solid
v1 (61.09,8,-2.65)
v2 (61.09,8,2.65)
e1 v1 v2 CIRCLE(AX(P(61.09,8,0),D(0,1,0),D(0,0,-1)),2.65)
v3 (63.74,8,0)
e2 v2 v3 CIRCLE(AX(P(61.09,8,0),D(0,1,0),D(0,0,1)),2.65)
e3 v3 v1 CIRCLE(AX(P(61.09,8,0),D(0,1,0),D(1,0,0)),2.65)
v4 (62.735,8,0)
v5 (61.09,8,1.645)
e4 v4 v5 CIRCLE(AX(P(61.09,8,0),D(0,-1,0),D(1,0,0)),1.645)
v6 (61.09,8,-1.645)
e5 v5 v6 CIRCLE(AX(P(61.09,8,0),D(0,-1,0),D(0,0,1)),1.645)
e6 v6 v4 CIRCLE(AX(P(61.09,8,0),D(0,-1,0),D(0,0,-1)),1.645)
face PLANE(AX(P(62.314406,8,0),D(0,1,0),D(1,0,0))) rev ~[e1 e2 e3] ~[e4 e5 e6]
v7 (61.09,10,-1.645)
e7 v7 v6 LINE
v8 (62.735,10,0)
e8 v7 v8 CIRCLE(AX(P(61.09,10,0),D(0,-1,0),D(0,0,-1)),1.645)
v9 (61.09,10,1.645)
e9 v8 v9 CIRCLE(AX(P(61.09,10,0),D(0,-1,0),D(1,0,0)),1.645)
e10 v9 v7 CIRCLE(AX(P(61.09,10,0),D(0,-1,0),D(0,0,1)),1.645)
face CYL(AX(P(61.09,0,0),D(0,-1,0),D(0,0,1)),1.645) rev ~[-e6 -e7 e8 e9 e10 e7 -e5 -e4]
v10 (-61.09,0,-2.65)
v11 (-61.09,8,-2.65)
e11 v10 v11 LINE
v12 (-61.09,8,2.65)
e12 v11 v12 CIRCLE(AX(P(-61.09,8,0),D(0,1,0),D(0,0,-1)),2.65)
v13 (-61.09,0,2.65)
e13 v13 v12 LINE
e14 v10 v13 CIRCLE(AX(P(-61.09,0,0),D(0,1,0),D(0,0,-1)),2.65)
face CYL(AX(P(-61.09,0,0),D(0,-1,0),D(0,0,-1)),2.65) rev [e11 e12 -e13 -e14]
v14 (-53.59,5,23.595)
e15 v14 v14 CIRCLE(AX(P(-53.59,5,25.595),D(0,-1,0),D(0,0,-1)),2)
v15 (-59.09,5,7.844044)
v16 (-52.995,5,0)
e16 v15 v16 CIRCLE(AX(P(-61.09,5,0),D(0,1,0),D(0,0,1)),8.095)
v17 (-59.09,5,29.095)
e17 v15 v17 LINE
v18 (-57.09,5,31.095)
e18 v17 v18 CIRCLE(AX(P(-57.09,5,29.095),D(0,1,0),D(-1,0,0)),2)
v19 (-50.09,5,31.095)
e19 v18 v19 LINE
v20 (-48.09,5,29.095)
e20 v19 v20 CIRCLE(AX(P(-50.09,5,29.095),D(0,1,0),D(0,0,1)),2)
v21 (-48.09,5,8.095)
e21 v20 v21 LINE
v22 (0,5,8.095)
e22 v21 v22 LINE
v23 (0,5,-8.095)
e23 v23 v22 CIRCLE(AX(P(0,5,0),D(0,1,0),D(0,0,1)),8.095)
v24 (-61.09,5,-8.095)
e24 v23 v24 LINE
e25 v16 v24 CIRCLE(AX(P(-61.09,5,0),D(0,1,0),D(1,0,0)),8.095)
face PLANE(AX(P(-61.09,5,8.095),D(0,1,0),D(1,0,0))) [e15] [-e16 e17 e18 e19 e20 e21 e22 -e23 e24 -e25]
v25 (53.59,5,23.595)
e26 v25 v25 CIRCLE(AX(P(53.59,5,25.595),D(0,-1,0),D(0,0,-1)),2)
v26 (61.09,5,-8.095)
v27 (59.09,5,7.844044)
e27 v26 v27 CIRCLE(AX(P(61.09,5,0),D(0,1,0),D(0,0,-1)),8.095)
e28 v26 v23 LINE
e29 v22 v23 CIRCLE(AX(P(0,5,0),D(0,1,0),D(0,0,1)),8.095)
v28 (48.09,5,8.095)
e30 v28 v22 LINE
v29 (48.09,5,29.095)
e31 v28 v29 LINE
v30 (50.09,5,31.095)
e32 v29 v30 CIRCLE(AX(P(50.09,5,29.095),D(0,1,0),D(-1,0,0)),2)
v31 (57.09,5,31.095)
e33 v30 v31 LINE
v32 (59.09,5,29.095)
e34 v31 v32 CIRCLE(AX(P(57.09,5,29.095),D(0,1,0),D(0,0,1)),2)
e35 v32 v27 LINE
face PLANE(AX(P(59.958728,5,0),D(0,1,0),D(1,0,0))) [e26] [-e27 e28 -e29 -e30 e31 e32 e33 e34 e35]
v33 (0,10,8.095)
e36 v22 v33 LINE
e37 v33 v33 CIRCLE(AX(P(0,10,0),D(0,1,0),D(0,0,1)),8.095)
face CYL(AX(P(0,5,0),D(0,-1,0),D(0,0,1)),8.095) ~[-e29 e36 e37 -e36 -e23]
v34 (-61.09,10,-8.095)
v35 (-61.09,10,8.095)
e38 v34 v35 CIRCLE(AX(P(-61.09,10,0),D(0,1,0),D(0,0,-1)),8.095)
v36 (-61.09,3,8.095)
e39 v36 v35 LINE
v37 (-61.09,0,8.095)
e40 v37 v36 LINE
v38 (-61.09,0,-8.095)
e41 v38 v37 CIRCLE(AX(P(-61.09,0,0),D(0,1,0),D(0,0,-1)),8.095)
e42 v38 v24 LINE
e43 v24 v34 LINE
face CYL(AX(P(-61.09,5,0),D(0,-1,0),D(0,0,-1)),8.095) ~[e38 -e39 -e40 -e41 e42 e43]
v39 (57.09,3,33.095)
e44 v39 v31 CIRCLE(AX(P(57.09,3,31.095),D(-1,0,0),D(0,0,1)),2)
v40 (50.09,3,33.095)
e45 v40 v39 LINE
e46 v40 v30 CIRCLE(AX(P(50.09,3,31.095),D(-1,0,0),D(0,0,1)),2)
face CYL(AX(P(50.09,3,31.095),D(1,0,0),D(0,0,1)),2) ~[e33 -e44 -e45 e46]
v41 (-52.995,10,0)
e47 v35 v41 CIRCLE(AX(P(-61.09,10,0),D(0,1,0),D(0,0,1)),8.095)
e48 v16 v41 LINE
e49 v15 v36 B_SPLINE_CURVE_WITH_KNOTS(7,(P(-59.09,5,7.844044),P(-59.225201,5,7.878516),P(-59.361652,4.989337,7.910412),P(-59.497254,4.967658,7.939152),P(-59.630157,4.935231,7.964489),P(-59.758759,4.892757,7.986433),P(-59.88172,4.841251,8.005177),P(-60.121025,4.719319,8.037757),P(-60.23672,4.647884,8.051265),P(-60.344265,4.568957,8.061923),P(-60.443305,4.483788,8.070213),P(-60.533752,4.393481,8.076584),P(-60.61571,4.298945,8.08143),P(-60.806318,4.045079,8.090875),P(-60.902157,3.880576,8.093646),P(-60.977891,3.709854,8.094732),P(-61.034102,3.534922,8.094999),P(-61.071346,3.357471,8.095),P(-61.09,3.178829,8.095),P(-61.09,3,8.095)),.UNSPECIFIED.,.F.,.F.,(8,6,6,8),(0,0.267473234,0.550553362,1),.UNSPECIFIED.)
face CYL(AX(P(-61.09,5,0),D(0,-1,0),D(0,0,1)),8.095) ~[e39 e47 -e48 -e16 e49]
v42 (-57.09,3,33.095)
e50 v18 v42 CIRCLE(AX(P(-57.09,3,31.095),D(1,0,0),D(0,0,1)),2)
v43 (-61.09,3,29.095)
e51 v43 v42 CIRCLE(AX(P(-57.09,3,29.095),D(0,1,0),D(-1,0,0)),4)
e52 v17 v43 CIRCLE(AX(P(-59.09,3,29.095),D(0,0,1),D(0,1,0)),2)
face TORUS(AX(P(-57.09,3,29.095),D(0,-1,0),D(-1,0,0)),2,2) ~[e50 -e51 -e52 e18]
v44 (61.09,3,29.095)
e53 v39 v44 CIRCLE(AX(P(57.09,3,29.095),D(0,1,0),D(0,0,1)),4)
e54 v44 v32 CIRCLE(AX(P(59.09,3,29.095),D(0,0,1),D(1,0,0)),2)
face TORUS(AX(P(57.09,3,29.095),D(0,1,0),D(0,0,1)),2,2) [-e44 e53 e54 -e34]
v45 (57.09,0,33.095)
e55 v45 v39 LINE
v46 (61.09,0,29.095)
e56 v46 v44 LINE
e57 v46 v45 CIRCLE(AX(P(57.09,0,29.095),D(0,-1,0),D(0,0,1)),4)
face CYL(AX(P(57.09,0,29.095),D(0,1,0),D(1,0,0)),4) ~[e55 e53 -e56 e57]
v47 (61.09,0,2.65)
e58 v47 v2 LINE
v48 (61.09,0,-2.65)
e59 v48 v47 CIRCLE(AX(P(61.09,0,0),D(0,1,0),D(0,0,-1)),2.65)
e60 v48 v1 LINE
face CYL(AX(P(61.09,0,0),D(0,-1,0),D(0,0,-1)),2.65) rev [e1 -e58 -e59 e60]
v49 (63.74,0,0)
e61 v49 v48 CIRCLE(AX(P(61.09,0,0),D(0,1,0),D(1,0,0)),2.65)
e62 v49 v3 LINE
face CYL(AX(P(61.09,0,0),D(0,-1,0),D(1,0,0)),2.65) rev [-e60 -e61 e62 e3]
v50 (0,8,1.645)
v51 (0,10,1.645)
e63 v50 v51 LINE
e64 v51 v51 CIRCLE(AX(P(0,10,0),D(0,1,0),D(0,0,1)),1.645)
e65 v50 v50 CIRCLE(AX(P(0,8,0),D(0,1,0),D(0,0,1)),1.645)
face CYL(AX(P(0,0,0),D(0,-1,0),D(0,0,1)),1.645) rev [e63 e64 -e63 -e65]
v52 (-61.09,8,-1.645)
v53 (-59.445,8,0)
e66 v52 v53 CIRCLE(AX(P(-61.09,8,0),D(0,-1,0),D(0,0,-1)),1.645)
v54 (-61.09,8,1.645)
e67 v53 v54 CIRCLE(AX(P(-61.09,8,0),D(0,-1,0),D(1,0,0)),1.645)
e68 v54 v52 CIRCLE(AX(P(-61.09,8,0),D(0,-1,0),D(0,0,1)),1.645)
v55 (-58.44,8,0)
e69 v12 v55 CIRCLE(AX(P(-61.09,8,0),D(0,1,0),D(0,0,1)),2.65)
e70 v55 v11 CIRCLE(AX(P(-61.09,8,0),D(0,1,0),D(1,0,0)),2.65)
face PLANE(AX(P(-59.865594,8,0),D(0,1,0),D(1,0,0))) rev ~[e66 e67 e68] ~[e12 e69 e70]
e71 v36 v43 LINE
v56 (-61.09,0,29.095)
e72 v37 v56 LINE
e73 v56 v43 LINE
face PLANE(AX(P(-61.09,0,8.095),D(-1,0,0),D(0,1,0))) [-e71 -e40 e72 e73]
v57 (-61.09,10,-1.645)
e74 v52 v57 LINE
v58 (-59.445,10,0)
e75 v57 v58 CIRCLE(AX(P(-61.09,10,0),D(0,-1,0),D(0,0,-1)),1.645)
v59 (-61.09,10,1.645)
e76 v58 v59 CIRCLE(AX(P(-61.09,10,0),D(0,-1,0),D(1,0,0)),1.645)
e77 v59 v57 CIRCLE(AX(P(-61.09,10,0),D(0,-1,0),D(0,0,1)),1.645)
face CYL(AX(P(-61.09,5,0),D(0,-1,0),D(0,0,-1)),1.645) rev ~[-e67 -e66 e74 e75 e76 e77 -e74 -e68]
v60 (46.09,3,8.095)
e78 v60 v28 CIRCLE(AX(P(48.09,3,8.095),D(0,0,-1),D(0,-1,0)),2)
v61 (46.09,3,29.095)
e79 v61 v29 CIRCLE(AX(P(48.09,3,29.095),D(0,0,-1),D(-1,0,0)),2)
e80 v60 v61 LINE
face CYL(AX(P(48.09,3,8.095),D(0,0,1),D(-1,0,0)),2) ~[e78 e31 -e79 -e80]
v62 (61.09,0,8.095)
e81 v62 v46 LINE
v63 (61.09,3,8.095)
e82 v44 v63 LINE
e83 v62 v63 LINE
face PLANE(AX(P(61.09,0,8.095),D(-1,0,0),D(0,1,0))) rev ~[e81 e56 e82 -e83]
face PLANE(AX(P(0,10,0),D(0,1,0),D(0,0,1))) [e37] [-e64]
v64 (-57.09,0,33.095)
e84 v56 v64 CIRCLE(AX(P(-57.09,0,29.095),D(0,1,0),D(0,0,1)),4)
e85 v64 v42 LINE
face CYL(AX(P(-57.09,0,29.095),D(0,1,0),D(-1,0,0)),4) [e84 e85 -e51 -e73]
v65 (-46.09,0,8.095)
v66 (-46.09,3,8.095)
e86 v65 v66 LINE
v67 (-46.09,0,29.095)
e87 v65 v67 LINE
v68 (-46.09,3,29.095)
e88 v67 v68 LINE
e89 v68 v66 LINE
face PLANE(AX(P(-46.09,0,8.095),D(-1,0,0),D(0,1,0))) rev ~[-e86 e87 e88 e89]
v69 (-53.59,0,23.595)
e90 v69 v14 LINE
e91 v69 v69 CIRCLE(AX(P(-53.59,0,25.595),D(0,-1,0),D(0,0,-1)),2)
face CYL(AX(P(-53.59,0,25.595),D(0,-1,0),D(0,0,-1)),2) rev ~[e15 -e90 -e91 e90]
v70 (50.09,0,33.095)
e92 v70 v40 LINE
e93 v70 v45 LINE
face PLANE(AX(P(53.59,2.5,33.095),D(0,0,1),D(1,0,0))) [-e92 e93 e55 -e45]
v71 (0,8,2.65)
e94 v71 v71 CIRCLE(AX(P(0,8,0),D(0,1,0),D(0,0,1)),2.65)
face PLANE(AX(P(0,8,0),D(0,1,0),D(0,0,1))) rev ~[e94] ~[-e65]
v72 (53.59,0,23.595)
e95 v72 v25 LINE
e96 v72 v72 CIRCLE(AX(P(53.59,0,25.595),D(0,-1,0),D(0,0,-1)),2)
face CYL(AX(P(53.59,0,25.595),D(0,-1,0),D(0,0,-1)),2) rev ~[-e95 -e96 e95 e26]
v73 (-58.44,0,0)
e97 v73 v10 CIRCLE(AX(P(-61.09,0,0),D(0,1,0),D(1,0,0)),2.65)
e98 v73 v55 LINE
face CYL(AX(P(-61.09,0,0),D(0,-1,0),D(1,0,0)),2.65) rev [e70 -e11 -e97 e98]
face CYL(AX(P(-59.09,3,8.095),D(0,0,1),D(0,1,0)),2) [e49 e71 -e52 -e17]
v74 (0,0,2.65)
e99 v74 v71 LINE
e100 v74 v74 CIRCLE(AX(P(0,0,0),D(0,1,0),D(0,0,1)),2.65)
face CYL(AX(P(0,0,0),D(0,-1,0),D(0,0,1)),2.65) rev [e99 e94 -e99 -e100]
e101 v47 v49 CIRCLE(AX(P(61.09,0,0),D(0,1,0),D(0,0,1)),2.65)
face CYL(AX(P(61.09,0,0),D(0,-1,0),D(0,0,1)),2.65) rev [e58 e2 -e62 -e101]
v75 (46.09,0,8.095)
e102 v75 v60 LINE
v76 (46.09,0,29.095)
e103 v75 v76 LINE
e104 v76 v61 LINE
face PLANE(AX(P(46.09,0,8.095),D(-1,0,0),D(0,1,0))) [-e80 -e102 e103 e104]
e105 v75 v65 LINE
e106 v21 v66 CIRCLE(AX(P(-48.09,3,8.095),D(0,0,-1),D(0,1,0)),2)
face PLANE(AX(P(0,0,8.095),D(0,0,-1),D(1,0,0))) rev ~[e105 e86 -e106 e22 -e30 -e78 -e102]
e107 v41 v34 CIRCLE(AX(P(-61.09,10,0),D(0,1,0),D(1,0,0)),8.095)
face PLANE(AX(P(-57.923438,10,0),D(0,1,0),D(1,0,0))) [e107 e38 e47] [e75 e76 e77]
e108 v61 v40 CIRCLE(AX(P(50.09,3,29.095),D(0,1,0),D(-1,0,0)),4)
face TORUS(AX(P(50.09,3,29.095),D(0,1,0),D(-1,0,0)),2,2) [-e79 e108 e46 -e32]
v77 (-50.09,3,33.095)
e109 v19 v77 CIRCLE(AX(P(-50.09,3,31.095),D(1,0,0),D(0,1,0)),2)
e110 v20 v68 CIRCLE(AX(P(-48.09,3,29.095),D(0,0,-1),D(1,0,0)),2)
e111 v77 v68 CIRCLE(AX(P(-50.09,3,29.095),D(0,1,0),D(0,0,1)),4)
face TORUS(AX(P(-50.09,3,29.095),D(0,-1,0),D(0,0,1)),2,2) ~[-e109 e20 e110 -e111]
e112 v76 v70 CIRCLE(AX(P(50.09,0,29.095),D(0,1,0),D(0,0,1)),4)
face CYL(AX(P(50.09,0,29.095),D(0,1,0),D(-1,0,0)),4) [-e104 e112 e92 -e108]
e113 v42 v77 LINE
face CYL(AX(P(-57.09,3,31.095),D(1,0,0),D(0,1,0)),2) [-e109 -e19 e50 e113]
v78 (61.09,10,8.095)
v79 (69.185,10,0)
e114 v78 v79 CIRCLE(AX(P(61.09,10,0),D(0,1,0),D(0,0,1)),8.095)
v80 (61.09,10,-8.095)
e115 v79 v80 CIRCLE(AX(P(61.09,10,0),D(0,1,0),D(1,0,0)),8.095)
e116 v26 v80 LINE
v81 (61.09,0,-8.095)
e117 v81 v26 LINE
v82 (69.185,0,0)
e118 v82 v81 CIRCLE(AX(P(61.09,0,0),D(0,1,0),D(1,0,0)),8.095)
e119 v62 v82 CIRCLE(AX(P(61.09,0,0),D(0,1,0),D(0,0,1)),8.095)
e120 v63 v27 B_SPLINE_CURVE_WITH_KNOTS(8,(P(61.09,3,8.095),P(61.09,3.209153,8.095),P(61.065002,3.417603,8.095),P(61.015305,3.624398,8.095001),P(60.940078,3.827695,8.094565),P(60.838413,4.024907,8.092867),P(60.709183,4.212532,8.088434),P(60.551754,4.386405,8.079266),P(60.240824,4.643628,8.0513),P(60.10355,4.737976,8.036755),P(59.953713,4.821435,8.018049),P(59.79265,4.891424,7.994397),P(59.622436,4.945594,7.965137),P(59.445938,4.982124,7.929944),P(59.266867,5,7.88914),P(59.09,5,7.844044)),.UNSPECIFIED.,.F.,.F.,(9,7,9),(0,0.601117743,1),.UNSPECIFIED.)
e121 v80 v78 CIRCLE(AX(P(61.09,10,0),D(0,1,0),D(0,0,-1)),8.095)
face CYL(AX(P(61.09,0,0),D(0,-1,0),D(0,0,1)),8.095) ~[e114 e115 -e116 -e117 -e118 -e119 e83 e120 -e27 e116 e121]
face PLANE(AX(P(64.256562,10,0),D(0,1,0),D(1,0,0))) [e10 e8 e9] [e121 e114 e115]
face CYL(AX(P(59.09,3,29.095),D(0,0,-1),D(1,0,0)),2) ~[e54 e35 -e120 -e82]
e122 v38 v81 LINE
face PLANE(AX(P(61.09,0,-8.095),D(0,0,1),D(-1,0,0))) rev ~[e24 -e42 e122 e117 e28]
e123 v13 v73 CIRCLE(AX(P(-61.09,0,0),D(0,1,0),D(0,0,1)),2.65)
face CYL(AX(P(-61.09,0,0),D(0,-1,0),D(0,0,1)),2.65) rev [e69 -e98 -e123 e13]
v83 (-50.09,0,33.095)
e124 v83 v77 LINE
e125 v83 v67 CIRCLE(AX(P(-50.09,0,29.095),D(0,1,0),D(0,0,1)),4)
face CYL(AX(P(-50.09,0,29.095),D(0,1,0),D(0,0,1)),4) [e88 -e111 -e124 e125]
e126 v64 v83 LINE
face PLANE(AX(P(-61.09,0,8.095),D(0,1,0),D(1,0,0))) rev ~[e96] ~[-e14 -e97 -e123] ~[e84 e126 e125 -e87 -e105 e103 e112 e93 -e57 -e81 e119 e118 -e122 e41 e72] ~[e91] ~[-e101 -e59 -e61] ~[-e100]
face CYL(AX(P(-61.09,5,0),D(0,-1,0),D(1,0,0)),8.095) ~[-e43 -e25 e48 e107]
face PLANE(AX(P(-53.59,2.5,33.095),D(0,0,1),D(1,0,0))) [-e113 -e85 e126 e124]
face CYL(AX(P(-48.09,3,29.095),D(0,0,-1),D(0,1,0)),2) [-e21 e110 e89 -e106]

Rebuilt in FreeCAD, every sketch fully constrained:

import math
import FreeCAD as App
import Part
import Sketcher

V = App.Vector


def edges_at(feature, points):
    """Names of the edges that pass closest to the given points."""
    edges = feature.Shape.Edges
    near = lambda p: min(range(len(edges)), key=lambda i: edges[i].distToShape(Part.Vertex(*p))[0])
    return sorted({f"Edge{near(p) + 1}" for p in points})


def add_polygon(sketch, points):
    """Adds a closed chain of lines whose ends are joined by coincident constraints."""
    first, n = sketch.GeometryCount, len(points)
    for a, b in zip(points, points[1:] + points[:1]):
        sketch.addGeometry(Part.LineSegment(App.Vector(*a, 0), App.Vector(*b, 0)), False)
    for i in range(n):
        sketch.addConstraint(Sketcher.Constraint("Coincident", first + i, 2, first + (i + 1) % n, 1))

doc = App.newDocument("Part")
params = doc.addObject("Spreadsheet::Sheet", "Params")
for row, (alias, value) in enumerate([
    ("sketch1_diameter", "3.29 mm"),
    ("sketch1_width", "122.18 mm"),
    ("pad1_length", "5 mm"),
    ("sketch2_diameter", "16.19 mm"),
    ("sketch2_diameter2", "3.29 mm"),
    ("pad2_length", "5 mm"),
    ("sketch3_diameter", "5.3 mm"),
    ("sketch3_diameter2", "3.29 mm"),
    ("pocket1_length", "8 mm"),
    ("sketch4_width", "15 mm"),
    ("sketch4_height", "5 mm"),
    ("pad3_length", "25 mm"),
    ("fillet_radius", "4 mm"),
    ("fillet2_radius", "2 mm"),
    ("sketch5_diameter", "4 mm"),
    ("sketch6_diameter", "4 mm"),
], start=1):
    params.set(f"A{row}", alias)
    params.set(f"B{row}", "=" + value)
    params.setAlias(f"B{row}", alias)

body = doc.addObject("PartDesign::Body", "Body")

# Sketch on XZ plane
sketch1 = doc.addObject("Sketcher::SketchObject", "Sketch")
body.addObject(sketch1)
sketch1.AttachmentSupport = (doc.XZ_Plane, [""])
sketch1.MapMode = "FlatFace"
sketch1.addGeometry(Part.ArcOfCircle(Part.Circle(V(-61.1, 0, 0), V(0, 0, 1), 8.1), math.radians(90), math.radians(270)), False)
sketch1.addGeometry(Part.LineSegment(V(-61.1, 8.1, 0), V(61.1, 8.1, 0)), False)
sketch1.addGeometry(Part.ArcOfCircle(Part.Circle(V(61.1, 0, 0), V(0, 0, 1), 8.1), math.radians(0), math.radians(90)), False)
sketch1.addGeometry(Part.ArcOfCircle(Part.Circle(V(61.1, 0, 0), V(0, 0, 1), 8.1), math.radians(-90), math.radians(0)), False)
sketch1.addGeometry(Part.LineSegment(V(61.1, -8.1, 0), V(-61.1, -8.1, 0)), False)
sketch1.addGeometry(Part.ArcOfCircle(Part.Circle(V(-61.1, 0, 0), V(0, 0, 1), 1.6), math.radians(-90), math.radians(0)), False)
sketch1.addGeometry(Part.ArcOfCircle(Part.Circle(V(-61.1, 0, 0), V(0, 0, 1), 1.6), math.radians(0), math.radians(90)), False)
sketch1.addGeometry(Part.ArcOfCircle(Part.Circle(V(-61.1, 0, 0), V(0, 0, 1), 1.6), math.radians(90), math.radians(270)), False)
sketch1.addGeometry(Part.Circle(V(0, 0, 0), V(0, 0, 1), 1.6), False)
sketch1.addGeometry(Part.ArcOfCircle(Part.Circle(V(61.1, 0, 0), V(0, 0, 1), 1.6), math.radians(90), math.radians(270)), False)
sketch1.addGeometry(Part.ArcOfCircle(Part.Circle(V(61.1, 0, 0), V(0, 0, 1), 1.6), math.radians(-90), math.radians(0)), False)
sketch1.addGeometry(Part.ArcOfCircle(Part.Circle(V(61.1, 0, 0), V(0, 0, 1), 1.6), math.radians(0), math.radians(90)), False)
sketch1.addConstraint(Sketcher.Constraint("Tangent", 0, 1, 1, 1))
sketch1.addConstraint(Sketcher.Constraint("Tangent", 1, 2, 2, 2))
sketch1.addConstraint(Sketcher.Constraint("Tangent", 2, 1, 3, 2))
sketch1.addConstraint(Sketcher.Constraint("Tangent", 3, 1, 4, 1))
sketch1.addConstraint(Sketcher.Constraint("Tangent", 4, 2, 0, 2))
sketch1.addConstraint(Sketcher.Constraint("Tangent", 5, 2, 6, 1))
sketch1.addConstraint(Sketcher.Constraint("Tangent", 6, 2, 7, 1))
sketch1.addConstraint(Sketcher.Constraint("Tangent", 7, 2, 5, 1))
sketch1.addConstraint(Sketcher.Constraint("Tangent", 9, 2, 10, 1))
sketch1.addConstraint(Sketcher.Constraint("Tangent", 10, 2, 11, 1))
sketch1.addConstraint(Sketcher.Constraint("Tangent", 11, 2, 9, 1))
sketch1.addConstraint(Sketcher.Constraint("Horizontal", 1))
sketch1.addConstraint(Sketcher.Constraint("Horizontal", 4))
sketch1.addConstraint(Sketcher.Constraint("Coincident", 8, 3, -1, 1))
sketch1.addConstraint(Sketcher.Constraint("Coincident", 5, 3, 0, 3))
sketch1.addConstraint(Sketcher.Constraint("Coincident", 9, 3, 2, 3))
sketch1.addConstraint(Sketcher.Constraint("Equal", 0, 2))
sketch1.addConstraint(Sketcher.Constraint("Equal", 7, 8))
sketch1.addConstraint(Sketcher.Constraint("Equal", 8, 9))
sketch1.addConstraint(Sketcher.Constraint("Symmetric", 0, 3, 2, 3, -1, 1))
sketch1.addConstraint(Sketcher.Constraint("PointOnObject", 2, 1, -1))
sketch1.addConstraint(Sketcher.Constraint("PointOnObject", 5, 2, -1))
sketch1.addConstraint(Sketcher.Constraint("PointOnObject", 10, 2, -1))
sketch1.addConstraint(Sketcher.Constraint("Vertical", 4, 2, 6, 2))
sketch1.addConstraint(Sketcher.Constraint("Vertical", 6, 2, 7, 2))
sketch1.addConstraint(Sketcher.Constraint("Vertical", 3, 1, 9, 2))
sketch1.addConstraint(Sketcher.Constraint("Vertical", 9, 2, 11, 2))
sketch1.addConstraint(Sketcher.Constraint("Diameter", 8, 3.29))
sketch1.addConstraint(Sketcher.Constraint("Radius", 0, 8.095))
sketch1.addConstraint(Sketcher.Constraint("DistanceX", 1, 1, 1, 2, 122.18))
sketch1.setExpression("Constraints[27]", "Params.sketch1_diameter")
sketch1.setExpression("Constraints[29]", "Params.sketch1_width")
pad1 = doc.addObject("PartDesign::Pad", "Pad")
body.addObject(pad1)
pad1.Profile = sketch1
pad1.setExpression("Length", "Params.pad1_length")
pad1.Reversed = True

# Sketch on XZ plane
sketch2 = doc.addObject("Sketcher::SketchObject", "Sketch001")
body.addObject(sketch2)
sketch2.AttachmentSupport = (doc.XZ_Plane, [""])
sketch2.MapMode = "FlatFace"
sketch2.AttachmentOffset = App.Placement(V(0, 0, -5), App.Rotation())
sketch2.addGeometry(Part.ArcOfCircle(Part.Circle(V(-61.1, 0, 0), V(0, 0, 1), 8.1), math.radians(-90), math.radians(0)), False)
sketch2.addGeometry(Part.ArcOfCircle(Part.Circle(V(-61.1, 0, 0), V(0, 0, 1), 8.1), math.radians(90), math.radians(270)), False)
sketch2.addGeometry(Part.ArcOfCircle(Part.Circle(V(-61.1, 0, 0), V(0, 0, 1), 8.1), math.radians(0), math.radians(90)), False)
sketch2.addGeometry(Part.ArcOfCircle(Part.Circle(V(-61.1, 0, 0), V(0, 0, 1), 1.6), math.radians(-90), math.radians(0)), False)
sketch2.addGeometry(Part.ArcOfCircle(Part.Circle(V(-61.1, 0, 0), V(0, 0, 1), 1.6), math.radians(0), math.radians(90)), False)
sketch2.addGeometry(Part.ArcOfCircle(Part.Circle(V(-61.1, 0, 0), V(0, 0, 1), 1.6), math.radians(90), math.radians(270)), False)
sketch2.addGeometry(Part.Circle(V(0, 0, 0), V(0, 0, 1), 8.1), False)
sketch2.addGeometry(Part.Circle(V(0, 0, 0), V(0, 0, 1), 1.6), False)
sketch2.addGeometry(Part.ArcOfCircle(Part.Circle(V(61.1, 0, 0), V(0, 0, 1), 8.1), math.radians(-90), math.radians(0)), False)
sketch2.addGeometry(Part.ArcOfCircle(Part.Circle(V(61.1, 0, 0), V(0, 0, 1), 8.1), math.radians(90), math.radians(270)), False)
sketch2.addGeometry(Part.ArcOfCircle(Part.Circle(V(61.1, 0, 0), V(0, 0, 1), 8.1), math.radians(0), math.radians(90)), False)
sketch2.addGeometry(Part.ArcOfCircle(Part.Circle(V(61.1, 0, 0), V(0, 0, 1), 1.6), math.radians(-90), math.radians(0)), False)
sketch2.addGeometry(Part.ArcOfCircle(Part.Circle(V(61.1, 0, 0), V(0, 0, 1), 1.6), math.radians(0), math.radians(90)), False)
sketch2.addGeometry(Part.ArcOfCircle(Part.Circle(V(61.1, 0, 0), V(0, 0, 1), 1.6), math.radians(90), math.radians(270)), False)
sketch2.addConstraint(Sketcher.Constraint("Tangent", 0, 1, 1, 2))
sketch2.addConstraint(Sketcher.Constraint("Tangent", 1, 1, 2, 2))
sketch2.addConstraint(Sketcher.Constraint("Tangent", 2, 1, 0, 2))
sketch2.addConstraint(Sketcher.Constraint("Tangent", 3, 2, 4, 1))
sketch2.addConstraint(Sketcher.Constraint("Tangent", 4, 2, 5, 1))
sketch2.addConstraint(Sketcher.Constraint("Tangent", 5, 2, 3, 1))
sketch2.addConstraint(Sketcher.Constraint("Tangent", 8, 1, 9, 2))
sketch2.addConstraint(Sketcher.Constraint("Tangent", 9, 1, 10, 2))
sketch2.addConstraint(Sketcher.Constraint("Tangent", 10, 1, 8, 2))
sketch2.addConstraint(Sketcher.Constraint("Tangent", 11, 2, 12, 1))
sketch2.addConstraint(Sketcher.Constraint("Tangent", 12, 2, 13, 1))
sketch2.addConstraint(Sketcher.Constraint("Tangent", 13, 2, 11, 1))
sketch2.addConstraint(Sketcher.Constraint("Coincident", 6, 3, -1, 1))
sketch2.addConstraint(Sketcher.Constraint("Coincident", 7, 3, -1, 1))
sketch2.addConstraint(Sketcher.Constraint("Coincident", 3, 3, 0, 3))
sketch2.addConstraint(Sketcher.Constraint("Coincident", 11, 3, 8, 3))
sketch2.addConstraint(Sketcher.Constraint("Equal", 2, 6))
sketch2.addConstraint(Sketcher.Constraint("Equal", 5, 7))
sketch2.addConstraint(Sketcher.Constraint("Equal", 6, 8))
sketch2.addConstraint(Sketcher.Constraint("Equal", 7, 11))
sketch2.addConstraint(Sketcher.Constraint("Symmetric", 0, 3, 8, 3, -1, 1))
sketch2.addConstraint(Sketcher.Constraint("Symmetric", 0, 1, 8, 1, -2))
sketch2.addConstraint(Sketcher.Constraint("PointOnObject", 2, 1, -1))
sketch2.addConstraint(Sketcher.Constraint("PointOnObject", 3, 2, -1))
sketch2.addConstraint(Sketcher.Constraint("PointOnObject", 10, 1, -1))
sketch2.addConstraint(Sketcher.Constraint("PointOnObject", 11, 2, -1))
sketch2.addConstraint(Sketcher.Constraint("Vertical", 5, 3, 0, 1))
sketch2.addConstraint(Sketcher.Constraint("Vertical", 0, 1, 1, 1))
sketch2.addConstraint(Sketcher.Constraint("Vertical", 1, 1, 4, 2))
sketch2.addConstraint(Sketcher.Constraint("Vertical", 4, 2, 5, 2))
sketch2.addConstraint(Sketcher.Constraint("Vertical", 8, 1, 9, 1))
sketch2.addConstraint(Sketcher.Constraint("Vertical", 9, 1, 12, 2))
sketch2.addConstraint(Sketcher.Constraint("Vertical", 12, 2, 13, 2))
sketch2.addConstraint(Sketcher.Constraint("Diameter", 6, 16.19))
sketch2.addConstraint(Sketcher.Constraint("Diameter", 7, 3.29))
sketch2.addConstraint(Sketcher.Constraint("DistanceX", 0, 3, -1, 1, 61.09))
sketch2.setExpression("Constraints[33]", "Params.sketch2_diameter")
sketch2.setExpression("Constraints[34]", "Params.sketch2_diameter2")
pad2 = doc.addObject("PartDesign::Pad", "Pad001")
body.addObject(pad2)
pad2.Profile = sketch2
pad2.setExpression("Length", "Params.pad2_length")
pad2.Reversed = True

# Sketch on XZ plane
sketch3 = doc.addObject("Sketcher::SketchObject", "Sketch002")
body.addObject(sketch3)
sketch3.AttachmentSupport = (doc.XZ_Plane, [""])
sketch3.MapMode = "FlatFace"
sketch3.addGeometry(Part.ArcOfCircle(Part.Circle(V(-61.1, 0, 0), V(0, 0, 1), 2.6), math.radians(-90), math.radians(0)), False)
sketch3.addGeometry(Part.ArcOfCircle(Part.Circle(V(-61.1, 0, 0), V(0, 0, 1), 2.6), math.radians(90), math.radians(270)), False)
sketch3.addGeometry(Part.ArcOfCircle(Part.Circle(V(-61.1, 0, 0), V(0, 0, 1), 2.6), math.radians(0), math.radians(90)), False)
sketch3.addGeometry(Part.ArcOfCircle(Part.Circle(V(-61.1, 0, 0), V(0, 0, 1), 1.6), math.radians(-90), math.radians(0)), False)
sketch3.addGeometry(Part.ArcOfCircle(Part.Circle(V(-61.1, 0, 0), V(0, 0, 1), 1.6), math.radians(0), math.radians(90)), False)
sketch3.addGeometry(Part.ArcOfCircle(Part.Circle(V(-61.1, 0, 0), V(0, 0, 1), 1.6), math.radians(90), math.radians(270)), False)
sketch3.addGeometry(Part.Circle(V(0, 0, 0), V(0, 0, 1), 2.6), False)
sketch3.addGeometry(Part.Circle(V(0, 0, 0), V(0, 0, 1), 1.6), False)
sketch3.addGeometry(Part.ArcOfCircle(Part.Circle(V(61.1, 0, 0), V(0, 0, 1), 2.6), math.radians(-90), math.radians(0)), False)
sketch3.addGeometry(Part.ArcOfCircle(Part.Circle(V(61.1, 0, 0), V(0, 0, 1), 2.6), math.radians(90), math.radians(270)), False)
sketch3.addGeometry(Part.ArcOfCircle(Part.Circle(V(61.1, 0, 0), V(0, 0, 1), 2.6), math.radians(0), math.radians(90)), False)
sketch3.addGeometry(Part.ArcOfCircle(Part.Circle(V(61.1, 0, 0), V(0, 0, 1), 1.6), math.radians(-90), math.radians(0)), False)
sketch3.addGeometry(Part.ArcOfCircle(Part.Circle(V(61.1, 0, 0), V(0, 0, 1), 1.6), math.radians(0), math.radians(90)), False)
sketch3.addGeometry(Part.ArcOfCircle(Part.Circle(V(61.1, 0, 0), V(0, 0, 1), 1.6), math.radians(90), math.radians(270)), False)
sketch3.addConstraint(Sketcher.Constraint("Tangent", 0, 1, 1, 2))
sketch3.addConstraint(Sketcher.Constraint("Tangent", 1, 1, 2, 2))
sketch3.addConstraint(Sketcher.Constraint("Tangent", 2, 1, 0, 2))
sketch3.addConstraint(Sketcher.Constraint("Tangent", 3, 2, 4, 1))
sketch3.addConstraint(Sketcher.Constraint("Tangent", 4, 2, 5, 1))
sketch3.addConstraint(Sketcher.Constraint("Tangent", 5, 2, 3, 1))
sketch3.addConstraint(Sketcher.Constraint("Tangent", 8, 1, 9, 2))
sketch3.addConstraint(Sketcher.Constraint("Tangent", 9, 1, 10, 2))
sketch3.addConstraint(Sketcher.Constraint("Tangent", 10, 1, 8, 2))
sketch3.addConstraint(Sketcher.Constraint("Tangent", 11, 2, 12, 1))
sketch3.addConstraint(Sketcher.Constraint("Tangent", 12, 2, 13, 1))
sketch3.addConstraint(Sketcher.Constraint("Tangent", 13, 2, 11, 1))
sketch3.addConstraint(Sketcher.Constraint("Coincident", 6, 3, -1, 1))
sketch3.addConstraint(Sketcher.Constraint("Coincident", 7, 3, -1, 1))
sketch3.addConstraint(Sketcher.Constraint("Coincident", 3, 3, 0, 3))
sketch3.addConstraint(Sketcher.Constraint("Coincident", 11, 3, 8, 3))
sketch3.addConstraint(Sketcher.Constraint("Equal", 2, 6))
sketch3.addConstraint(Sketcher.Constraint("Equal", 5, 7))
sketch3.addConstraint(Sketcher.Constraint("Equal", 6, 8))
sketch3.addConstraint(Sketcher.Constraint("Equal", 7, 11))
sketch3.addConstraint(Sketcher.Constraint("Symmetric", 0, 3, 8, 3, -1, 1))
sketch3.addConstraint(Sketcher.Constraint("Symmetric", 0, 1, 8, 1, -2))
sketch3.addConstraint(Sketcher.Constraint("PointOnObject", 2, 1, -1))
sketch3.addConstraint(Sketcher.Constraint("PointOnObject", 3, 2, -1))
sketch3.addConstraint(Sketcher.Constraint("PointOnObject", 10, 1, -1))
sketch3.addConstraint(Sketcher.Constraint("PointOnObject", 11, 2, -1))
sketch3.addConstraint(Sketcher.Constraint("Vertical", 5, 3, 0, 1))
sketch3.addConstraint(Sketcher.Constraint("Vertical", 0, 1, 1, 1))
sketch3.addConstraint(Sketcher.Constraint("Vertical", 1, 1, 4, 2))
sketch3.addConstraint(Sketcher.Constraint("Vertical", 4, 2, 5, 2))
sketch3.addConstraint(Sketcher.Constraint("Vertical", 8, 1, 9, 1))
sketch3.addConstraint(Sketcher.Constraint("Vertical", 9, 1, 12, 2))
sketch3.addConstraint(Sketcher.Constraint("Vertical", 12, 2, 13, 2))
sketch3.addConstraint(Sketcher.Constraint("Diameter", 6, 5.3))
sketch3.addConstraint(Sketcher.Constraint("Diameter", 7, 3.29))
sketch3.addConstraint(Sketcher.Constraint("DistanceX", 0, 3, -1, 1, 61.09))
sketch3.setExpression("Constraints[33]", "Params.sketch3_diameter")
sketch3.setExpression("Constraints[34]", "Params.sketch3_diameter2")
pocket1 = doc.addObject("PartDesign::Pocket", "Pocket")
body.addObject(pocket1)
pocket1.Profile = sketch3
pocket1.setExpression("Length", "Params.pocket1_length")

# Sketch on XY plane
sketch4 = doc.addObject("Sketcher::SketchObject", "Sketch003")
body.addObject(sketch4)
sketch4.AttachmentSupport = (doc.XY_Plane, [""])
sketch4.MapMode = "FlatFace"
sketch4.AttachmentOffset = App.Placement(V(0, 0, 8.095), App.Rotation())
add_polygon(sketch4, [(-61, 5), (-61, 0), (-46, 0), (-46, 5)])  # lines 0-3
add_polygon(sketch4, [(46, 5), (46, 0), (61, 0), (61, 5)])  # lines 4-7
sketch4.addConstraint(Sketcher.Constraint("Vertical", 0))
sketch4.addConstraint(Sketcher.Constraint("Horizontal", 1))
sketch4.addConstraint(Sketcher.Constraint("Vertical", 2))
sketch4.addConstraint(Sketcher.Constraint("Horizontal", 3))
sketch4.addConstraint(Sketcher.Constraint("Vertical", 4))
sketch4.addConstraint(Sketcher.Constraint("Horizontal", 5))
sketch4.addConstraint(Sketcher.Constraint("Vertical", 6))
sketch4.addConstraint(Sketcher.Constraint("Horizontal", 7))
sketch4.addConstraint(Sketcher.Constraint("Symmetric", 1, 2, 4, 2, -1, 1))
sketch4.addConstraint(Sketcher.Constraint("Symmetric", 0, 2, 5, 2, -2))
sketch4.addConstraint(Sketcher.Constraint("Horizontal", 3, 2, 6, 2))
sketch4.addConstraint(Sketcher.Constraint("DistanceX", 1, 1, 1, 2, 15.0))
sketch4.addConstraint(Sketcher.Constraint("DistanceY", 0, 2, 0, 1, 5.0))
sketch4.addConstraint(Sketcher.Constraint("DistanceX", 0, 2, -1, 1, 61.09))
sketch4.setExpression("Constraints[19]", "Params.sketch4_width")
sketch4.setExpression("Constraints[20]", "Params.sketch4_height")
pad3 = doc.addObject("PartDesign::Pad", "Pad002")
body.addObject(pad3)
pad3.Profile = sketch4
pad3.setExpression("Length", "Params.pad3_length")
doc.recompute()

fillet = doc.addObject("PartDesign::Fillet", "Fillet")
body.addObject(fillet)
fillet.Base = (pad3, edges_at(pad3, [
    (-61.09, 2.5, 33.095),
    (-46.09, 2.5, 33.095),
    (61.09, 2.5, 33.095),
    (46.09, 2.5, 33.095),
]))
fillet.setExpression("Radius", "Params.fillet_radius")
doc.recompute()

fillet2 = doc.addObject("PartDesign::Fillet", "Fillet001")
body.addObject(fillet2)
fillet2.Base = (fillet, edges_at(fillet, [
    (-53.59, 5, 33.095),
    (-61.09, 5, 18.595),
    (-46.09, 5, 18.595),
    (-47.262, 5, 31.923),
    (-59.918, 5, 31.923),
    (53.59, 5, 33.095),
    (46.09, 5, 18.595),
    (61.09, 5, 18.595),
    (47.262, 5, 31.923),
    (59.918, 5, 31.923),
]))
fillet2.setExpression("Radius", "Params.fillet2_radius")

# Sketch on XZ plane
sketch5 = doc.addObject("Sketcher::SketchObject", "Sketch004")
body.addObject(sketch5)
sketch5.AttachmentSupport = (doc.XZ_Plane, [""])
sketch5.MapMode = "FlatFace"
sketch5.addGeometry(Part.Circle(V(-53.6, 25.6, 0), V(0, 0, 1), 2), False)
sketch5.addConstraint(Sketcher.Constraint("Diameter", 0, 4.0))
sketch5.addConstraint(Sketcher.Constraint("DistanceX", 0, 3, -1, 1, 53.59))
sketch5.addConstraint(Sketcher.Constraint("DistanceY", -1, 1, 0, 3, 25.595))
sketch5.setExpression("Constraints[0]", "Params.sketch5_diameter")
pocket2 = doc.addObject("PartDesign::Pocket", "Pocket001")
body.addObject(pocket2)
pocket2.Profile = sketch5
pocket2.Type = "UpToFirst"

# Sketch on XZ plane
sketch6 = doc.addObject("Sketcher::SketchObject", "Sketch005")
body.addObject(sketch6)
sketch6.AttachmentSupport = (doc.XZ_Plane, [""])
sketch6.MapMode = "FlatFace"
sketch6.addGeometry(Part.Circle(V(53.6, 25.6, 0), V(0, 0, 1), 2), False)
sketch6.addConstraint(Sketcher.Constraint("Diameter", 0, 4.0))
sketch6.addConstraint(Sketcher.Constraint("DistanceX", -1, 1, 0, 3, 53.59))
sketch6.addConstraint(Sketcher.Constraint("DistanceY", -1, 1, 0, 3, 25.595))
sketch6.setExpression("Constraints[0]", "Params.sketch6_diameter")
pocket3 = doc.addObject("PartDesign::Pocket", "Pocket002")
body.addObject(pocket3)
pocket3.Profile = sketch6
pocket3.Type = "UpToFirst"

doc.recompute()
